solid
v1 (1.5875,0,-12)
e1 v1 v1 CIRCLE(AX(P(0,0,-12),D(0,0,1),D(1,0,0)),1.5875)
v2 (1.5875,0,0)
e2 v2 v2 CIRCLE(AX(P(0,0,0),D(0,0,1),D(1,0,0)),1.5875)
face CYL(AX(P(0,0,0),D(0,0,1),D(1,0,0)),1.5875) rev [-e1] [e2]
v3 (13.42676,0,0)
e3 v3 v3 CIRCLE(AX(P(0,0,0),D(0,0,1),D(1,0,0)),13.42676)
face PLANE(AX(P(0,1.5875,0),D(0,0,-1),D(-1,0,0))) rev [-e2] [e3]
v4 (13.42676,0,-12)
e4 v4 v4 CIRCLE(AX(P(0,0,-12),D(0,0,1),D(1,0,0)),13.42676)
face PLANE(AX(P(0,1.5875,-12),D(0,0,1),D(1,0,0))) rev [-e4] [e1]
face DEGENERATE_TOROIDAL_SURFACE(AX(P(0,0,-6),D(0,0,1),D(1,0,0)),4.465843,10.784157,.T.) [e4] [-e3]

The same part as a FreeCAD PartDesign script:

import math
import FreeCAD as App
import Part
import Sketcher

doc = App.newDocument("Part")
params = doc.addObject("Spreadsheet::Sheet", "Params")
for row, (alias, value) in enumerate([
    ("sketch1_height", "12 mm"),
    ("revolution_angle", "360 deg"),
], start=1):
    params.set(f"A{row}", alias)
    params.set(f"B{row}", "=" + value)
    params.setAlias(f"B{row}", alias)

body = doc.addObject("PartDesign::Body", "Body")

sketch1 = doc.addObject("Sketcher::SketchObject", "Sketch")
body.addObject(sketch1)
sketch1.AttachmentSupport = (doc.YZ_Plane, [""])
sketch1.MapMode = "FlatFace"
sketch1.addGeometry(Part.LineSegment(App.Vector(13, 0, 0), App.Vector(2, 0, 0)), False)
sketch1.addGeometry(Part.LineSegment(App.Vector(2, 0, 0), App.Vector(2, -12, 0)), False)
sketch1.addGeometry(Part.LineSegment(App.Vector(2, -12, 0), App.Vector(13, -12, 0)), False)
sketch1.addGeometry(Part.ArcOfCircle(Part.Circle(App.Vector(4, -6, 0), App.Vector(0, 0, 1), 11), math.radians(-34), math.radians(34)), False)
sketch1.addConstraint(Sketcher.Constraint("Coincident", 0, 2, 1, 1))
sketch1.addConstraint(Sketcher.Constraint("Coincident", 1, 2, 2, 1))
sketch1.addConstraint(Sketcher.Constraint("Coincident", 2, 2, 3, 1))
sketch1.addConstraint(Sketcher.Constraint("Coincident", 3, 2, 0, 1))
sketch1.addConstraint(Sketcher.Constraint("Horizontal", 0))
sketch1.addConstraint(Sketcher.Constraint("Vertical", 1))
sketch1.addConstraint(Sketcher.Constraint("Horizontal", 2))
sketch1.addConstraint(Sketcher.Constraint("PointOnObject", 0, 2, -1))
sketch1.addConstraint(Sketcher.Constraint("Vertical", 2, 2, 3, 2))
sketch1.addConstraint(Sketcher.Constraint("DistanceY", 1, 2, 1, 1, 12.0))
sketch1.addConstraint(Sketcher.Constraint("Radius", 3, 10.784157))
sketch1.addConstraint(Sketcher.Constraint("DistanceX", 0, 2, 0, 1, 11.83926))
sketch1.addConstraint(Sketcher.Constraint("DistanceX", -1, 1, 0, 2, 1.5875))
sketch1.setExpression("Constraints[9]", "Params.sketch1_height")
revolution = doc.addObject("PartDesign::Revolution", "Revolution")
body.addObject(revolution)
revolution.Profile = sketch1
revolution.ReferenceAxis = (sketch1, ["V_Axis"])
revolution.setExpression("Angle", "Params.revolution_angle")

doc.recompute()
